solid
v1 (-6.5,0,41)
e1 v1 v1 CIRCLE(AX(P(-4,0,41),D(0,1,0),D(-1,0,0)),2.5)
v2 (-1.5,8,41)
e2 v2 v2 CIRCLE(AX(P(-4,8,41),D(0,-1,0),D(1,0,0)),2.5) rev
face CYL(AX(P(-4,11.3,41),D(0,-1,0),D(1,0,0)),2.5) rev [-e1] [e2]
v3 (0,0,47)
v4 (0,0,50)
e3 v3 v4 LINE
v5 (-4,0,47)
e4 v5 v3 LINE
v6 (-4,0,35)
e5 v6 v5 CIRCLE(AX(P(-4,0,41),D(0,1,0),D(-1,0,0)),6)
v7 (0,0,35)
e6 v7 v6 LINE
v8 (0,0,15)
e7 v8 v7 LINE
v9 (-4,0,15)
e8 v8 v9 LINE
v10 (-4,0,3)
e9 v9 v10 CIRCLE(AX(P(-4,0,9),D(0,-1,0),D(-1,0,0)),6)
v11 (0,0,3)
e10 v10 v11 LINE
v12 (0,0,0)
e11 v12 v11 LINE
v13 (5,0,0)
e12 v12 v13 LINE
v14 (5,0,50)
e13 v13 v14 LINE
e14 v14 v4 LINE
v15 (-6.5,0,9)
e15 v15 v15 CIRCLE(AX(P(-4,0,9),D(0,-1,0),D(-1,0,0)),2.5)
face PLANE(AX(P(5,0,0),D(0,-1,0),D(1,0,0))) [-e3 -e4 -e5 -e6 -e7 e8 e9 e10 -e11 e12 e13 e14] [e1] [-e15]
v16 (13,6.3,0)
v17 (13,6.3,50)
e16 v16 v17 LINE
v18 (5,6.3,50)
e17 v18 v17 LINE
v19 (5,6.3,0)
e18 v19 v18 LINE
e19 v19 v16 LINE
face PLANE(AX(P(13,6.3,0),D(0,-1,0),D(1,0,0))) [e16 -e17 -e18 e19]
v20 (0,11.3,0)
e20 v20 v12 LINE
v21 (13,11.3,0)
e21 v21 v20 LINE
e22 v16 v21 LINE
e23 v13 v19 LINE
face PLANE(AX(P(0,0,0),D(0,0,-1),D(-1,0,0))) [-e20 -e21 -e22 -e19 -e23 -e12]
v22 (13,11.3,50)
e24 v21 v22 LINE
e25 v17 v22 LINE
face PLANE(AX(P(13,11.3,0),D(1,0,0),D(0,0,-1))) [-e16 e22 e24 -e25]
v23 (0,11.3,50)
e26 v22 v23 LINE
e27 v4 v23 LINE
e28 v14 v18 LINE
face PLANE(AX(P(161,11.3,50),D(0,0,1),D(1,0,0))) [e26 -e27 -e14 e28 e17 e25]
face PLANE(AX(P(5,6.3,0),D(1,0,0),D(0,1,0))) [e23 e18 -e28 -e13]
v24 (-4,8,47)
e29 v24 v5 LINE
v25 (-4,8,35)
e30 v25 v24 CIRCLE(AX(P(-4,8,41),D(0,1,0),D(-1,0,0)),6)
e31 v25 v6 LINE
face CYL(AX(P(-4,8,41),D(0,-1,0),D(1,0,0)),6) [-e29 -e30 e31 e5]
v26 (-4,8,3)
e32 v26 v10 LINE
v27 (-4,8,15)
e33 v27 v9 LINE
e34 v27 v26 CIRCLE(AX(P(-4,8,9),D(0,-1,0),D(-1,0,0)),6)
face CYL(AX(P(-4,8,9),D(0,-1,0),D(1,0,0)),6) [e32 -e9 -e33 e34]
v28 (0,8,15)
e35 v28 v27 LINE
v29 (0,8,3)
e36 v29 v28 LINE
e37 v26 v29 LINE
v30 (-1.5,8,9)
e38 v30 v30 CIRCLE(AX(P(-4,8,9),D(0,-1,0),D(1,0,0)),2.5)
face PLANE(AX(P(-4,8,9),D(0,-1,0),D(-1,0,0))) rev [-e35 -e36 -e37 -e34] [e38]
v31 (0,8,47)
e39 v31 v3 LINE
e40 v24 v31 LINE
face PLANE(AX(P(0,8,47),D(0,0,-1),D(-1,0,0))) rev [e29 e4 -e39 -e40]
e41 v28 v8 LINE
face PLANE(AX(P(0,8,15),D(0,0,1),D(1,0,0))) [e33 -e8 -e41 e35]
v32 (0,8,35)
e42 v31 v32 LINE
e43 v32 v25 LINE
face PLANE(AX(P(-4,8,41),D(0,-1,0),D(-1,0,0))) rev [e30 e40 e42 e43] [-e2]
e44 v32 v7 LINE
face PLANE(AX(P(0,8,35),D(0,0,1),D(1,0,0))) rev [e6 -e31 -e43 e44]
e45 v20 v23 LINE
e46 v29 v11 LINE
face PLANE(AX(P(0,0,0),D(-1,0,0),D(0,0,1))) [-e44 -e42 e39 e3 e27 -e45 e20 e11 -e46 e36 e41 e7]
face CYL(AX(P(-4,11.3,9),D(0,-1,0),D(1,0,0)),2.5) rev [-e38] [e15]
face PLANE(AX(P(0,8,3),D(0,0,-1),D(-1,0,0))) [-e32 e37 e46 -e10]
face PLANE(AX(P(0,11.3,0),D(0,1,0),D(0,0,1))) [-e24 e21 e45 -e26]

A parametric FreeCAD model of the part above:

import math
import FreeCAD as App
import Part
import Sketcher


def add_polygon(sketch, points):
    """Adds a closed chain of lines whose ends are joined by coincident constraints."""
    first, n = sketch.GeometryCount, len(points)
    for a, b in zip(points, points[1:] + points[:1]):
        sketch.addGeometry(Part.LineSegment(App.Vector(*a, 0), App.Vector(*b, 0)), False)
    for i in range(n):
        sketch.addConstraint(Sketcher.Constraint("Coincident", first + i, 2, first + (i + 1) % n, 1))

doc = App.newDocument("Part")
body = doc.addObject("PartDesign::Body", "Body")

# Sketch on XY plane
sketch1 = body.newObject("Sketcher::SketchObject", "Sketch")
sketch1.AttachmentSupport = (doc.getObject("XY_Plane"), [""])
sketch1.MapMode = "FlatFace"
add_polygon(sketch1, [(0, 11.3), (0, 0), (5, 0), (5, 6.3), (13, 6.3), (13, 11.3)])  # lines 0-5
sketch1.addConstraint([
    Sketcher.Constraint("Vertical", 0),
    Sketcher.Constraint("Horizontal", 1),
    Sketcher.Constraint("Vertical", 2),
    Sketcher.Constraint("Horizontal", 3),
    Sketcher.Constraint("Vertical", 4),
    Sketcher.Constraint("Horizontal", 5),
    Sketcher.Constraint("Coincident", 0, 2, -1, 1),
    Sketcher.Constraint("Equal", 1, 4),
    Sketcher.Constraint("DistanceX", 1, 1, 1, 2, 5.0),
    Sketcher.Constraint("DistanceX", 3, 1, 3, 2, 8.0),
    Sketcher.Constraint("DistanceY", 0, 2, 0, 1, 11.3),
])

# Sketch on XZ plane
sketch2 = body.newObject("Sketcher::SketchObject", "Sketch001")
sketch2.AttachmentSupport = (doc.getObject("XZ_Plane"), [""])
sketch2.MapMode = "FlatFace"
sketch2.addGeometry(Part.LineSegment(App.Vector(0, 0, 0), App.Vector(0, 37, 0)), False)
sketch2.addConstraint([
    Sketcher.Constraint("Vertical", 0),
    Sketcher.Constraint("Coincident", 0, 1, -1, 1),
    Sketcher.Constraint("DistanceY", 0, 1, 0, 2, 37.0),
])
doc.recompute()

additivepipe = body.newObject("PartDesign::AdditivePipe", "AdditivePipe")
additivepipe.Profile = sketch1
additivepipe.Spine = (sketch2, ["Edge1"])

# Sketch on YZ plane
sketch3 = body.newObject("Sketcher::SketchObject", "Sketch002")
sketch3.AttachmentSupport = (doc.getObject("YZ_Plane"), [""])
sketch3.MapMode = "FlatFace"
add_polygon(sketch3, [(11.3, 37), (0, 37), (0, 50), (11.3, 50)])  # lines 0-3
sketch3.addConstraint([
    Sketcher.Constraint("Horizontal", 0),
    Sketcher.Constraint("Vertical", 1),
    Sketcher.Constraint("Horizontal", 2),
    Sketcher.Constraint("Vertical", 3),
    Sketcher.Constraint("PointOnObject", 0, 2, -2),
    Sketcher.Constraint("DistanceY", 1, 1, 1, 2, 13.0),
    Sketcher.Constraint("DistanceX", 0, 2, 0, 1, 11.3),
    Sketcher.Constraint("DistanceY", -1, 1, 0, 2, 37.0),
])
pad1 = body.newObject("PartDesign::Pad", "Pad")
pad1.Profile = sketch3
pad1.Length = 161
doc.recompute()

datumplane = body.newObject("PartDesign::Plane", "DatumPlane")
datumplane.AttachmentSupport = (doc.getObject("YZ_Plane"), [""])
datumplane.MapMode = "FlatFace"
datumplane.AttachmentOffset = App.Placement(App.Vector(0, 0, 80.5), App.Rotation())
mirrored = body.newObject("PartDesign::Mirrored", "Mirrored")
mirrored.Originals = [additivepipe]
mirrored.MirrorPlane = (datumplane, [""])
body.Tip = mirrored

# Sketch on XZ plane
sketch4 = body.newObject("Sketcher::SketchObject", "Sketch003")
sketch4.AttachmentSupport = (doc.getObject("XZ_Plane"), [""])
sketch4.MapMode = "FlatFace"
add_polygon(sketch4, [(5, 40.5), (5, 37), (156, 37), (156, 40.5)])  # lines 0-3
sketch4.addConstraint([
    Sketcher.Constraint("Vertical", 0),
    Sketcher.Constraint("Horizontal", 1),
    Sketcher.Constraint("Vertical", 2),
    Sketcher.Constraint("Horizontal", 3),
    Sketcher.Constraint("DistanceX", 1, 1, 1, 2, 151.0),
    Sketcher.Constraint("DistanceY", 0, 2, 0, 1, 3.5),
    Sketcher.Constraint("DistanceX", -1, 1, 0, 2, 5.0),
    Sketcher.Constraint("DistanceY", -1, 1, 0, 2, 37.0),
])
pocket1 = body.newObject("PartDesign::Pocket", "Pocket")
pocket1.Profile = sketch4
pocket1.Length = 6.3

# Sketch on XZ plane
sketch5 = body.newObject("Sketcher::SketchObject", "Sketch004")
sketch5.AttachmentSupport = (doc.getObject("XZ_Plane"), [""])
sketch5.MapMode = "FlatFace"
sketch5.addGeometry([
    Part.LineSegment(App.Vector(165, 47, 0), App.Vector(161, 47, 0)),
    Part.LineSegment(App.Vector(161, 47, 0), App.Vector(161, 35, 0)),
    Part.LineSegment(App.Vector(161, 35, 0), App.Vector(165, 35, 0)),
    Part.ArcOfCircle(Part.Circle(App.Vector(165, 41, 0), App.Vector(0, 0, 1), 6), math.radians(-90), math.radians(90)),
], False)
sketch5.addConstraint([
    Sketcher.Constraint("Coincident", 0, 2, 1, 1),
    Sketcher.Constraint("Coincident", 1, 2, 2, 1),
    Sketcher.Constraint("Tangent", 2, 2, 3, 1),
    Sketcher.Constraint("Tangent", 3, 2, 0, 1),
    Sketcher.Constraint("Horizontal", 0),
    Sketcher.Constraint("Vertical", 1),
    Sketcher.Constraint("Horizontal", 2),
    Sketcher.Constraint("Radius", 3, 6.0),
    Sketcher.Constraint("DistanceX", 0, 2, 0, 1, 4.0),
    Sketcher.Constraint("DistanceX", -1, 1, 3, 3, 165.0),
    Sketcher.Constraint("DistanceY", -1, 1, 3, 3, 41.0),
])
pad2 = body.newObject("PartDesign::Pad", "Pad001")
pad2.Profile = sketch5
pad2.Length = 8
pad2.Reversed = True

# Sketch on XZ plane
sketch6 = body.newObject("Sketcher::SketchObject", "Sketch005")
sketch6.AttachmentSupport = (doc.getObject("XZ_Plane"), [""])
sketch6.MapMode = "FlatFace"
sketch6.addGeometry(Part.Circle(App.Vector(165, 41, 0), App.Vector(0, 0, 1), 2.5), False)
sketch6.addConstraint([
    Sketcher.Constraint("Diameter", 0, 5.0),
    Sketcher.Constraint("DistanceX", -1, 1, 0, 3, 165.0),
    Sketcher.Constraint("DistanceY", -1, 1, 0, 3, 41.0),
])
pocket2 = body.newObject("PartDesign::Pocket", "Pocket001")
pocket2.Profile = sketch6
pocket2.Type = "ThroughAll"
doc.recompute()

datumplane2 = body.newObject("PartDesign::Plane", "DatumPlane001")
datumplane2.AttachmentSupport = (doc.getObject("XY_Plane"), [""])
datumplane2.MapMode = "FlatFace"
datumplane2.AttachmentOffset = App.Placement(App.Vector(0, 0, 25), App.Rotation())
mirrored2 = body.newObject("PartDesign::Mirrored", "Mirrored001")
mirrored2.Originals = [pad2, pocket2]
mirrored2.MirrorPlane = (datumplane2, [""])
body.Tip = mirrored2
doc.recompute()

datumplane3 = body.newObject("PartDesign::Plane", "DatumPlane002")
datumplane3.AttachmentSupport = (doc.getObject("YZ_Plane"), [""])
datumplane3.MapMode = "FlatFace"
datumplane3.AttachmentOffset = App.Placement(App.Vector(0, 0, 80.5), App.Rotation())
mirrored3 = body.newObject("PartDesign::Mirrored", "Mirrored002")
mirrored3.Originals = [pad2, pocket2]
mirrored3.MirrorPlane = (datumplane3, [""])
body.Tip = mirrored3

# Sketch on XZ plane
sketch7 = body.newObject("Sketcher::SketchObject", "Sketch006")
sketch7.AttachmentSupport = (doc.getObject("XZ_Plane"), [""])
sketch7.MapMode = "FlatFace"
sketch7.addGeometry([
    Part.LineSegment(App.Vector(-4, 3, 0), App.Vector(0, 3, 0)),
    Part.LineSegment(App.Vector(0, 3, 0), App.Vector(0, 15, 0)),
    Part.LineSegment(App.Vector(0, 15, 0), App.Vector(-4, 15, 0)),
    Part.ArcOfCircle(Part.Circle(App.Vector(-4, 9, 0), App.Vector(0, 0, 1), 6), math.radians(90), math.radians(270)),
], False)
sketch7.addConstraint([
    Sketcher.Constraint("Coincident", 0, 2, 1, 1),
    Sketcher.Constraint("Coincident", 1, 2, 2, 1),
    Sketcher.Constraint("Tangent", 2, 2, 3, 1),
    Sketcher.Constraint("Tangent", 3, 2, 0, 1),
    Sketcher.Constraint("Horizontal", 0),
    Sketcher.Constraint("Vertical", 1),
    Sketcher.Constraint("Horizontal", 2),
    Sketcher.Constraint("PointOnObject", 0, 2, -2),
    Sketcher.Constraint("Radius", 3, 6.0),
    Sketcher.Constraint("DistanceX", 0, 1, 0, 2, 4.0),
    Sketcher.Constraint("DistanceY", -1, 1, 3, 3, 9.0),
])
pad3 = body.newObject("PartDesign::Pad", "Pad002")
pad3.Profile = sketch7
pad3.Length = 8
pad3.Reversed = True

# Sketch on XZ plane
sketch8 = body.newObject("Sketcher::SketchObject", "Sketch007")
sketch8.AttachmentSupport = (doc.getObject("XZ_Plane"), [""])
sketch8.MapMode = "FlatFace"
sketch8.addGeometry(Part.Circle(App.Vector(-4, 9, 0), App.Vector(0, 0, 1), 2.5), False)
sketch8.addConstraint([
    Sketcher.Constraint("Diameter", 0, 5.0),
    Sketcher.Constraint("DistanceX", 0, 3, -1, 1, 4.0),
    Sketcher.Constraint("DistanceY", -1, 1, 0, 3, 9.0),
])
pocket3 = body.newObject("PartDesign::Pocket", "Pocket002")
pocket3.Profile = sketch8
pocket3.Type = "ThroughAll"

# Sketch on XZ plane
sketch9 = body.newObject("Sketcher::SketchObject", "Sketch008")
sketch9.AttachmentSupport = (doc.getObject("XZ_Plane"), [""])
sketch9.MapMode = "FlatFace"
sketch9.AttachmentOffset = App.Placement(App.Vector(0, 0, -11.3), App.Rotation())
sketch9.addGeometry(Part.Circle(App.Vector(121, 45.25, 0), App.Vector(0, 0, 1), 2.5), False)
sketch9.addConstraint([
    Sketcher.Constraint("Diameter", 0, 5.0),
    Sketcher.Constraint("DistanceX", -1, 1, 0, 3, 121.0),
    Sketcher.Constraint("DistanceY", -1, 1, 0, 3, 45.25),
])
pocket4 = body.newObject("PartDesign::Pocket", "Pocket003")
pocket4.Profile = sketch9
pocket4.Type = "ThroughAll"
pocket4.Reversed = True
doc.recompute()

linearpattern = body.newObject("PartDesign::LinearPattern", "LinearPattern")
linearpattern.Originals = [pocket4]
linearpattern.Direction = (doc.getObject("X_Axis"), [""])
linearpattern.Mode = "offset"
linearpattern.Offset = 40.5
linearpattern.Occurrences = 3
linearpattern.Reversed = True
body.Tip = linearpattern

# Sketch on YZ plane
sketch10 = body.newObject("Sketcher::SketchObject", "Sketch009")
sketch10.AttachmentSupport = (doc.getObject("YZ_Plane"), [""])
sketch10.MapMode = "FlatFace"
sketch10.AttachmentOffset = App.Placement(App.Vector(0, 0, 13), App.Rotation())
add_polygon(sketch10, [(19.377693, 59.383381), (-3.587326, 59.383381), (-3.587326, -5.470347), (19.377693, -5.470347)])  # lines 0-3
sketch10.addConstraint([
    Sketcher.Constraint("Horizontal", 0),
    Sketcher.Constraint("Vertical", 1),
    Sketcher.Constraint("Horizontal", 2),
    Sketcher.Constraint("Vertical", 3),
    Sketcher.Constraint("DistanceX", 0, 2, 0, 1, 22.965019),
    Sketcher.Constraint("DistanceY", 1, 2, 1, 1, 64.853728),
    Sketcher.Constraint("DistanceY", -1, 1, 0, 2, 59.383381),
    Sketcher.Constraint("DistanceX", 0, 2, -1, 1, 3.587326),
])
pocket5 = body.newObject("PartDesign::Pocket", "Pocket004")
pocket5.Profile = sketch10
pocket5.Type = "ThroughAll"
pocket5.Reversed = True

# Sketch on XY plane
sketch11 = body.newObject("Sketcher::SketchObject", "Sketch010")
sketch11.AttachmentSupport = (doc.getObject("XY_Plane"), [""])
sketch11.MapMode = "FlatFace"
sketch11.AttachmentOffset = App.Placement(App.Vector(0, 0, 40.5), App.Rotation())
add_polygon(sketch11, [(13, 6.3), (13, 0), (5, 0), (5, 6.3)])  # lines 0-3
sketch11.addConstraint([
    Sketcher.Constraint("Vertical", 0),
    Sketcher.Constraint("Horizontal", 1),
    Sketcher.Constraint("Vertical", 2),
    Sketcher.Constraint("Horizontal", 3),
    Sketcher.Constraint("PointOnObject", 0, 2, -1),
    Sketcher.Constraint("DistanceX", 1, 2, 1, 1, 8.0),
    Sketcher.Constraint("DistanceY", 0, 2, 0, 1, 6.3),
    Sketcher.Constraint("DistanceX", -1, 1, 0, 2, 13.0),
])
pocket6 = body.newObject("PartDesign::Pocket", "Pocket005")
pocket6.Profile = sketch11
pocket6.Type = "ThroughAll"
pocket6.Reversed = True

doc.recompute()
